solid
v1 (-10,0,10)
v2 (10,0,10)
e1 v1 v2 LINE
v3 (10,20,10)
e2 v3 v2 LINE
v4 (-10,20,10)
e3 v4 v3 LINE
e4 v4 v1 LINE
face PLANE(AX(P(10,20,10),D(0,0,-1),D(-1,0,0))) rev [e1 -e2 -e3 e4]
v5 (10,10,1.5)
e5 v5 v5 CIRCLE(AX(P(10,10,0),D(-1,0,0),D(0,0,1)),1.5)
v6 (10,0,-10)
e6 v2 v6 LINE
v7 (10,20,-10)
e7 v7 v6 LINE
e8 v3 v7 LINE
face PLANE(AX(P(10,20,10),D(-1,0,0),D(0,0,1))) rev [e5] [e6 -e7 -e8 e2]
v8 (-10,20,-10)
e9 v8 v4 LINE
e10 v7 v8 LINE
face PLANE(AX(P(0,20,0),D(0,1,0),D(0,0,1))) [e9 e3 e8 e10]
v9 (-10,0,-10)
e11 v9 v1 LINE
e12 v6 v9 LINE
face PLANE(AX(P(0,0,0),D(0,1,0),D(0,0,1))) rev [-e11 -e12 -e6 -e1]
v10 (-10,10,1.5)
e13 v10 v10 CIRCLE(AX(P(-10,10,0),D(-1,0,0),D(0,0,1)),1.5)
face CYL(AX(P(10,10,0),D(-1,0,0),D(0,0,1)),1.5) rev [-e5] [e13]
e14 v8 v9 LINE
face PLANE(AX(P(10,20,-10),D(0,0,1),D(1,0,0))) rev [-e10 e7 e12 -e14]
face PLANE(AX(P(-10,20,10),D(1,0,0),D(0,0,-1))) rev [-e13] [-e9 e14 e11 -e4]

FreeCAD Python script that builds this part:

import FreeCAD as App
import Part
import Sketcher

V = App.Vector

doc = App.newDocument("Part")
body = doc.addObject("PartDesign::Body", "Body")

# Sketch on XZ plane
sketch1 = body.newObject("Sketcher::SketchObject", "Sketch")
sketch1.AttachmentSupport = (doc.getObject("XZ_Plane"), [""])
sketch1.MapMode = "FlatFace"
sketch1.addGeometry([
    Part.LineSegment(V(-10, -10, 0), V(-10, 10, 0)),
    Part.LineSegment(V(-10, 10, 0), V(10, 10, 0)),
    Part.LineSegment(V(10, 10, 0), V(10, -10, 0)),
    Part.LineSegment(V(10, -10, 0), V(-10, -10, 0)),
], False)
sketch1.addConstraint([
    Sketcher.Constraint("Coincident", 0, 2, 1, 1),
    Sketcher.Constraint("Coincident", 1, 2, 2, 1),
    Sketcher.Constraint("Coincident", 2, 2, 3, 1),
    Sketcher.Constraint("Coincident", 3, 2, 0, 1),
    Sketcher.Constraint("Vertical", 0),
    Sketcher.Constraint("Horizontal", 1),
    Sketcher.Constraint("Vertical", 2),
    Sketcher.Constraint("Horizontal", 3),
    Sketcher.Constraint("Symmetric", 0, 2, 2, 2, -1, 1),
    Sketcher.Constraint("Equal", 3, 0),
    Sketcher.Constraint("DistanceX", 1, 1, 1, 2, 20.0),
])
pad1 = body.newObject("PartDesign::Pad", "Pad")
pad1.Profile = sketch1
pad1.Length = 20
pad1.Reversed = True

# Sketch on YZ plane
sketch2 = body.newObject("Sketcher::SketchObject", "Sketch001")
sketch2.AttachmentSupport = (doc.getObject("YZ_Plane"), [""])
sketch2.MapMode = "FlatFace"
sketch2.AttachmentOffset = App.Placement(V(0, 0, -10), App.Rotation())
sketch2.addGeometry(Part.Circle(V(10, 0, 0), V(0, 0, 1), 1.5), False)
sketch2.addConstraint([
    Sketcher.Constraint("PointOnObject", 0, 3, -1),
    Sketcher.Constraint("Diameter", 0, 3.0),
    Sketcher.Constraint("DistanceX", -1, 1, 0, 3, 10.0),
])
pocket1 = body.newObject("PartDesign::Pocket", "Pocket")
pocket1.Profile = sketch2
pocket1.Length = 20
pocket1.Reversed = True

doc.recompute()
